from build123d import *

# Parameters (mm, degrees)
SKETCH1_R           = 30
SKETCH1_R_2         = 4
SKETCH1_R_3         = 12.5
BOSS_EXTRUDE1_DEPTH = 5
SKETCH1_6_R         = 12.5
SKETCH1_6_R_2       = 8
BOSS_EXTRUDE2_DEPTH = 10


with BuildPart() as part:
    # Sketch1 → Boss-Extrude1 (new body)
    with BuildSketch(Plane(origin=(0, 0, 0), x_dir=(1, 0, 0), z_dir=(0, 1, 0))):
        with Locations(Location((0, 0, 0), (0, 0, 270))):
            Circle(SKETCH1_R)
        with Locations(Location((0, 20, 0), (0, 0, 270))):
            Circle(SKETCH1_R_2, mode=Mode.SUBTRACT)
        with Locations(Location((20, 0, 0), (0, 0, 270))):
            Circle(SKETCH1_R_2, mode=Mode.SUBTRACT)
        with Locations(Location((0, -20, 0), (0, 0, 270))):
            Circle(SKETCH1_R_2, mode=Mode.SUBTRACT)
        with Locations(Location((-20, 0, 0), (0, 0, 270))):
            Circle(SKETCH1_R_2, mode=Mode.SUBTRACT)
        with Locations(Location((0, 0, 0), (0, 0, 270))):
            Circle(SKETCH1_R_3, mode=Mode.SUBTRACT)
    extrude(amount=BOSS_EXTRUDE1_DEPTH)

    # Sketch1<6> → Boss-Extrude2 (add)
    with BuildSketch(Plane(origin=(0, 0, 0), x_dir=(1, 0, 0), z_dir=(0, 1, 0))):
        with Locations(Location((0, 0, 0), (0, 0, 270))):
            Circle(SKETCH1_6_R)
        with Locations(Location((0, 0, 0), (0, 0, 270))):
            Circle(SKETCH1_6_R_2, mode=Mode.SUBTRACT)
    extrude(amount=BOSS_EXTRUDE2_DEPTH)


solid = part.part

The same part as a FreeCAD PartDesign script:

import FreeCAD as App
import Part
import Sketcher
Q = App.Units.Quantity

doc = App.newDocument("Part")
body = doc.addObject("PartDesign::Body", "Body")

# Sketch on XZ plane
sketch1 = body.newObject("Sketcher::SketchObject", "Sketch")
sketch1.AttachmentSupport = (doc.getObject("XZ_Plane"), [""])
sketch1.MapMode = "FlatFace"
sketch1.addGeometry(Part.Circle(App.Vector(0, 0, 0), App.Vector(0, 0, 1), 30), False)
sketch1.addGeometry(Part.Circle(App.Vector(0, -20, 0), App.Vector(0, 0, 1), 4), False)
sketch1.addGeometry(Part.Circle(App.Vector(-20, 0, 0), App.Vector(0, 0, 1), 4), False)
sketch1.addGeometry(Part.Circle(App.Vector(20, 0, 0), App.Vector(0, 0, 1), 4), False)
sketch1.addGeometry(Part.Circle(App.Vector(0, 0, 0), App.Vector(0, 0, 1), 12.5), False)
sketch1.addGeometry(Part.Circle(App.Vector(0, 20, 0), App.Vector(0, 0, 1), 4), False)
sketch1.addConstraint(Sketcher.Constraint("Coincident", 0, 3, -1, 1))
sketch1.addConstraint(Sketcher.Constraint("Coincident", 4, 3, -1, 1))
sketch1.addConstraint(Sketcher.Constraint("Equal", 1, 2))
sketch1.addConstraint(Sketcher.Constraint("Equal", 2, 3))
sketch1.addConstraint(Sketcher.Constraint("Equal", 3, 5))
sketch1.addConstraint(Sketcher.Constraint("Symmetric", 2, 3, 3, 3, -1, 1))
sketch1.addConstraint(Sketcher.Constraint("Symmetric", 1, 3, 5, 3, -1, 1))
sketch1.addConstraint(Sketcher.Constraint("PointOnObject", 1, 3, -2))
sketch1.addConstraint(Sketcher.Constraint("PointOnObject", 2, 3, -1))
sketch1.addConstraint(Sketcher.Constraint("Diameter", 0, Q("60 mm")))
sketch1.addConstraint(Sketcher.Constraint("Diameter", 1, Q("8 mm")))
sketch1.addConstraint(Sketcher.Constraint("Diameter", 4, Q("25 mm")))
sketch1.addConstraint(Sketcher.Constraint("DistanceY", 1, 3, -1, 1, Q("20 mm")))
sketch1.addConstraint(Sketcher.Constraint("DistanceX", 2, 3, -1, 1, Q("20 mm")))
pad1 = body.newObject("PartDesign::Pad", "Pad")
pad1.Profile = sketch1
pad1.Length = 5
pad1.Reversed = True

# Sketch on XZ plane
sketch2 = body.newObject("Sketcher::SketchObject", "Sketch001")
sketch2.AttachmentSupport = (doc.getObject("XZ_Plane"), [""])
sketch2.MapMode = "FlatFace"
sketch2.addGeometry(Part.Circle(App.Vector(0, 0, 0), App.Vector(0, 0, 1), 12), False)
sketch2.addGeometry(Part.Circle(App.Vector(0, 0, 0), App.Vector(0, 0, 1), 8), False)
sketch2.addConstraint(Sketcher.Constraint("Coincident", 0, 3, -1, 1))
sketch2.addConstraint(Sketcher.Constraint("Coincident", 1, 3, -1, 1))
sketch2.addConstraint(Sketcher.Constraint("Diameter", 0, Q("25 mm")))
sketch2.addConstraint(Sketcher.Constraint("Diameter", 1, Q("16 mm")))
pad2 = body.newObject("PartDesign::Pad", "Pad001")
pad2.Profile = sketch2
pad2.Length = 10
pad2.Reversed = True

doc.recompute()
